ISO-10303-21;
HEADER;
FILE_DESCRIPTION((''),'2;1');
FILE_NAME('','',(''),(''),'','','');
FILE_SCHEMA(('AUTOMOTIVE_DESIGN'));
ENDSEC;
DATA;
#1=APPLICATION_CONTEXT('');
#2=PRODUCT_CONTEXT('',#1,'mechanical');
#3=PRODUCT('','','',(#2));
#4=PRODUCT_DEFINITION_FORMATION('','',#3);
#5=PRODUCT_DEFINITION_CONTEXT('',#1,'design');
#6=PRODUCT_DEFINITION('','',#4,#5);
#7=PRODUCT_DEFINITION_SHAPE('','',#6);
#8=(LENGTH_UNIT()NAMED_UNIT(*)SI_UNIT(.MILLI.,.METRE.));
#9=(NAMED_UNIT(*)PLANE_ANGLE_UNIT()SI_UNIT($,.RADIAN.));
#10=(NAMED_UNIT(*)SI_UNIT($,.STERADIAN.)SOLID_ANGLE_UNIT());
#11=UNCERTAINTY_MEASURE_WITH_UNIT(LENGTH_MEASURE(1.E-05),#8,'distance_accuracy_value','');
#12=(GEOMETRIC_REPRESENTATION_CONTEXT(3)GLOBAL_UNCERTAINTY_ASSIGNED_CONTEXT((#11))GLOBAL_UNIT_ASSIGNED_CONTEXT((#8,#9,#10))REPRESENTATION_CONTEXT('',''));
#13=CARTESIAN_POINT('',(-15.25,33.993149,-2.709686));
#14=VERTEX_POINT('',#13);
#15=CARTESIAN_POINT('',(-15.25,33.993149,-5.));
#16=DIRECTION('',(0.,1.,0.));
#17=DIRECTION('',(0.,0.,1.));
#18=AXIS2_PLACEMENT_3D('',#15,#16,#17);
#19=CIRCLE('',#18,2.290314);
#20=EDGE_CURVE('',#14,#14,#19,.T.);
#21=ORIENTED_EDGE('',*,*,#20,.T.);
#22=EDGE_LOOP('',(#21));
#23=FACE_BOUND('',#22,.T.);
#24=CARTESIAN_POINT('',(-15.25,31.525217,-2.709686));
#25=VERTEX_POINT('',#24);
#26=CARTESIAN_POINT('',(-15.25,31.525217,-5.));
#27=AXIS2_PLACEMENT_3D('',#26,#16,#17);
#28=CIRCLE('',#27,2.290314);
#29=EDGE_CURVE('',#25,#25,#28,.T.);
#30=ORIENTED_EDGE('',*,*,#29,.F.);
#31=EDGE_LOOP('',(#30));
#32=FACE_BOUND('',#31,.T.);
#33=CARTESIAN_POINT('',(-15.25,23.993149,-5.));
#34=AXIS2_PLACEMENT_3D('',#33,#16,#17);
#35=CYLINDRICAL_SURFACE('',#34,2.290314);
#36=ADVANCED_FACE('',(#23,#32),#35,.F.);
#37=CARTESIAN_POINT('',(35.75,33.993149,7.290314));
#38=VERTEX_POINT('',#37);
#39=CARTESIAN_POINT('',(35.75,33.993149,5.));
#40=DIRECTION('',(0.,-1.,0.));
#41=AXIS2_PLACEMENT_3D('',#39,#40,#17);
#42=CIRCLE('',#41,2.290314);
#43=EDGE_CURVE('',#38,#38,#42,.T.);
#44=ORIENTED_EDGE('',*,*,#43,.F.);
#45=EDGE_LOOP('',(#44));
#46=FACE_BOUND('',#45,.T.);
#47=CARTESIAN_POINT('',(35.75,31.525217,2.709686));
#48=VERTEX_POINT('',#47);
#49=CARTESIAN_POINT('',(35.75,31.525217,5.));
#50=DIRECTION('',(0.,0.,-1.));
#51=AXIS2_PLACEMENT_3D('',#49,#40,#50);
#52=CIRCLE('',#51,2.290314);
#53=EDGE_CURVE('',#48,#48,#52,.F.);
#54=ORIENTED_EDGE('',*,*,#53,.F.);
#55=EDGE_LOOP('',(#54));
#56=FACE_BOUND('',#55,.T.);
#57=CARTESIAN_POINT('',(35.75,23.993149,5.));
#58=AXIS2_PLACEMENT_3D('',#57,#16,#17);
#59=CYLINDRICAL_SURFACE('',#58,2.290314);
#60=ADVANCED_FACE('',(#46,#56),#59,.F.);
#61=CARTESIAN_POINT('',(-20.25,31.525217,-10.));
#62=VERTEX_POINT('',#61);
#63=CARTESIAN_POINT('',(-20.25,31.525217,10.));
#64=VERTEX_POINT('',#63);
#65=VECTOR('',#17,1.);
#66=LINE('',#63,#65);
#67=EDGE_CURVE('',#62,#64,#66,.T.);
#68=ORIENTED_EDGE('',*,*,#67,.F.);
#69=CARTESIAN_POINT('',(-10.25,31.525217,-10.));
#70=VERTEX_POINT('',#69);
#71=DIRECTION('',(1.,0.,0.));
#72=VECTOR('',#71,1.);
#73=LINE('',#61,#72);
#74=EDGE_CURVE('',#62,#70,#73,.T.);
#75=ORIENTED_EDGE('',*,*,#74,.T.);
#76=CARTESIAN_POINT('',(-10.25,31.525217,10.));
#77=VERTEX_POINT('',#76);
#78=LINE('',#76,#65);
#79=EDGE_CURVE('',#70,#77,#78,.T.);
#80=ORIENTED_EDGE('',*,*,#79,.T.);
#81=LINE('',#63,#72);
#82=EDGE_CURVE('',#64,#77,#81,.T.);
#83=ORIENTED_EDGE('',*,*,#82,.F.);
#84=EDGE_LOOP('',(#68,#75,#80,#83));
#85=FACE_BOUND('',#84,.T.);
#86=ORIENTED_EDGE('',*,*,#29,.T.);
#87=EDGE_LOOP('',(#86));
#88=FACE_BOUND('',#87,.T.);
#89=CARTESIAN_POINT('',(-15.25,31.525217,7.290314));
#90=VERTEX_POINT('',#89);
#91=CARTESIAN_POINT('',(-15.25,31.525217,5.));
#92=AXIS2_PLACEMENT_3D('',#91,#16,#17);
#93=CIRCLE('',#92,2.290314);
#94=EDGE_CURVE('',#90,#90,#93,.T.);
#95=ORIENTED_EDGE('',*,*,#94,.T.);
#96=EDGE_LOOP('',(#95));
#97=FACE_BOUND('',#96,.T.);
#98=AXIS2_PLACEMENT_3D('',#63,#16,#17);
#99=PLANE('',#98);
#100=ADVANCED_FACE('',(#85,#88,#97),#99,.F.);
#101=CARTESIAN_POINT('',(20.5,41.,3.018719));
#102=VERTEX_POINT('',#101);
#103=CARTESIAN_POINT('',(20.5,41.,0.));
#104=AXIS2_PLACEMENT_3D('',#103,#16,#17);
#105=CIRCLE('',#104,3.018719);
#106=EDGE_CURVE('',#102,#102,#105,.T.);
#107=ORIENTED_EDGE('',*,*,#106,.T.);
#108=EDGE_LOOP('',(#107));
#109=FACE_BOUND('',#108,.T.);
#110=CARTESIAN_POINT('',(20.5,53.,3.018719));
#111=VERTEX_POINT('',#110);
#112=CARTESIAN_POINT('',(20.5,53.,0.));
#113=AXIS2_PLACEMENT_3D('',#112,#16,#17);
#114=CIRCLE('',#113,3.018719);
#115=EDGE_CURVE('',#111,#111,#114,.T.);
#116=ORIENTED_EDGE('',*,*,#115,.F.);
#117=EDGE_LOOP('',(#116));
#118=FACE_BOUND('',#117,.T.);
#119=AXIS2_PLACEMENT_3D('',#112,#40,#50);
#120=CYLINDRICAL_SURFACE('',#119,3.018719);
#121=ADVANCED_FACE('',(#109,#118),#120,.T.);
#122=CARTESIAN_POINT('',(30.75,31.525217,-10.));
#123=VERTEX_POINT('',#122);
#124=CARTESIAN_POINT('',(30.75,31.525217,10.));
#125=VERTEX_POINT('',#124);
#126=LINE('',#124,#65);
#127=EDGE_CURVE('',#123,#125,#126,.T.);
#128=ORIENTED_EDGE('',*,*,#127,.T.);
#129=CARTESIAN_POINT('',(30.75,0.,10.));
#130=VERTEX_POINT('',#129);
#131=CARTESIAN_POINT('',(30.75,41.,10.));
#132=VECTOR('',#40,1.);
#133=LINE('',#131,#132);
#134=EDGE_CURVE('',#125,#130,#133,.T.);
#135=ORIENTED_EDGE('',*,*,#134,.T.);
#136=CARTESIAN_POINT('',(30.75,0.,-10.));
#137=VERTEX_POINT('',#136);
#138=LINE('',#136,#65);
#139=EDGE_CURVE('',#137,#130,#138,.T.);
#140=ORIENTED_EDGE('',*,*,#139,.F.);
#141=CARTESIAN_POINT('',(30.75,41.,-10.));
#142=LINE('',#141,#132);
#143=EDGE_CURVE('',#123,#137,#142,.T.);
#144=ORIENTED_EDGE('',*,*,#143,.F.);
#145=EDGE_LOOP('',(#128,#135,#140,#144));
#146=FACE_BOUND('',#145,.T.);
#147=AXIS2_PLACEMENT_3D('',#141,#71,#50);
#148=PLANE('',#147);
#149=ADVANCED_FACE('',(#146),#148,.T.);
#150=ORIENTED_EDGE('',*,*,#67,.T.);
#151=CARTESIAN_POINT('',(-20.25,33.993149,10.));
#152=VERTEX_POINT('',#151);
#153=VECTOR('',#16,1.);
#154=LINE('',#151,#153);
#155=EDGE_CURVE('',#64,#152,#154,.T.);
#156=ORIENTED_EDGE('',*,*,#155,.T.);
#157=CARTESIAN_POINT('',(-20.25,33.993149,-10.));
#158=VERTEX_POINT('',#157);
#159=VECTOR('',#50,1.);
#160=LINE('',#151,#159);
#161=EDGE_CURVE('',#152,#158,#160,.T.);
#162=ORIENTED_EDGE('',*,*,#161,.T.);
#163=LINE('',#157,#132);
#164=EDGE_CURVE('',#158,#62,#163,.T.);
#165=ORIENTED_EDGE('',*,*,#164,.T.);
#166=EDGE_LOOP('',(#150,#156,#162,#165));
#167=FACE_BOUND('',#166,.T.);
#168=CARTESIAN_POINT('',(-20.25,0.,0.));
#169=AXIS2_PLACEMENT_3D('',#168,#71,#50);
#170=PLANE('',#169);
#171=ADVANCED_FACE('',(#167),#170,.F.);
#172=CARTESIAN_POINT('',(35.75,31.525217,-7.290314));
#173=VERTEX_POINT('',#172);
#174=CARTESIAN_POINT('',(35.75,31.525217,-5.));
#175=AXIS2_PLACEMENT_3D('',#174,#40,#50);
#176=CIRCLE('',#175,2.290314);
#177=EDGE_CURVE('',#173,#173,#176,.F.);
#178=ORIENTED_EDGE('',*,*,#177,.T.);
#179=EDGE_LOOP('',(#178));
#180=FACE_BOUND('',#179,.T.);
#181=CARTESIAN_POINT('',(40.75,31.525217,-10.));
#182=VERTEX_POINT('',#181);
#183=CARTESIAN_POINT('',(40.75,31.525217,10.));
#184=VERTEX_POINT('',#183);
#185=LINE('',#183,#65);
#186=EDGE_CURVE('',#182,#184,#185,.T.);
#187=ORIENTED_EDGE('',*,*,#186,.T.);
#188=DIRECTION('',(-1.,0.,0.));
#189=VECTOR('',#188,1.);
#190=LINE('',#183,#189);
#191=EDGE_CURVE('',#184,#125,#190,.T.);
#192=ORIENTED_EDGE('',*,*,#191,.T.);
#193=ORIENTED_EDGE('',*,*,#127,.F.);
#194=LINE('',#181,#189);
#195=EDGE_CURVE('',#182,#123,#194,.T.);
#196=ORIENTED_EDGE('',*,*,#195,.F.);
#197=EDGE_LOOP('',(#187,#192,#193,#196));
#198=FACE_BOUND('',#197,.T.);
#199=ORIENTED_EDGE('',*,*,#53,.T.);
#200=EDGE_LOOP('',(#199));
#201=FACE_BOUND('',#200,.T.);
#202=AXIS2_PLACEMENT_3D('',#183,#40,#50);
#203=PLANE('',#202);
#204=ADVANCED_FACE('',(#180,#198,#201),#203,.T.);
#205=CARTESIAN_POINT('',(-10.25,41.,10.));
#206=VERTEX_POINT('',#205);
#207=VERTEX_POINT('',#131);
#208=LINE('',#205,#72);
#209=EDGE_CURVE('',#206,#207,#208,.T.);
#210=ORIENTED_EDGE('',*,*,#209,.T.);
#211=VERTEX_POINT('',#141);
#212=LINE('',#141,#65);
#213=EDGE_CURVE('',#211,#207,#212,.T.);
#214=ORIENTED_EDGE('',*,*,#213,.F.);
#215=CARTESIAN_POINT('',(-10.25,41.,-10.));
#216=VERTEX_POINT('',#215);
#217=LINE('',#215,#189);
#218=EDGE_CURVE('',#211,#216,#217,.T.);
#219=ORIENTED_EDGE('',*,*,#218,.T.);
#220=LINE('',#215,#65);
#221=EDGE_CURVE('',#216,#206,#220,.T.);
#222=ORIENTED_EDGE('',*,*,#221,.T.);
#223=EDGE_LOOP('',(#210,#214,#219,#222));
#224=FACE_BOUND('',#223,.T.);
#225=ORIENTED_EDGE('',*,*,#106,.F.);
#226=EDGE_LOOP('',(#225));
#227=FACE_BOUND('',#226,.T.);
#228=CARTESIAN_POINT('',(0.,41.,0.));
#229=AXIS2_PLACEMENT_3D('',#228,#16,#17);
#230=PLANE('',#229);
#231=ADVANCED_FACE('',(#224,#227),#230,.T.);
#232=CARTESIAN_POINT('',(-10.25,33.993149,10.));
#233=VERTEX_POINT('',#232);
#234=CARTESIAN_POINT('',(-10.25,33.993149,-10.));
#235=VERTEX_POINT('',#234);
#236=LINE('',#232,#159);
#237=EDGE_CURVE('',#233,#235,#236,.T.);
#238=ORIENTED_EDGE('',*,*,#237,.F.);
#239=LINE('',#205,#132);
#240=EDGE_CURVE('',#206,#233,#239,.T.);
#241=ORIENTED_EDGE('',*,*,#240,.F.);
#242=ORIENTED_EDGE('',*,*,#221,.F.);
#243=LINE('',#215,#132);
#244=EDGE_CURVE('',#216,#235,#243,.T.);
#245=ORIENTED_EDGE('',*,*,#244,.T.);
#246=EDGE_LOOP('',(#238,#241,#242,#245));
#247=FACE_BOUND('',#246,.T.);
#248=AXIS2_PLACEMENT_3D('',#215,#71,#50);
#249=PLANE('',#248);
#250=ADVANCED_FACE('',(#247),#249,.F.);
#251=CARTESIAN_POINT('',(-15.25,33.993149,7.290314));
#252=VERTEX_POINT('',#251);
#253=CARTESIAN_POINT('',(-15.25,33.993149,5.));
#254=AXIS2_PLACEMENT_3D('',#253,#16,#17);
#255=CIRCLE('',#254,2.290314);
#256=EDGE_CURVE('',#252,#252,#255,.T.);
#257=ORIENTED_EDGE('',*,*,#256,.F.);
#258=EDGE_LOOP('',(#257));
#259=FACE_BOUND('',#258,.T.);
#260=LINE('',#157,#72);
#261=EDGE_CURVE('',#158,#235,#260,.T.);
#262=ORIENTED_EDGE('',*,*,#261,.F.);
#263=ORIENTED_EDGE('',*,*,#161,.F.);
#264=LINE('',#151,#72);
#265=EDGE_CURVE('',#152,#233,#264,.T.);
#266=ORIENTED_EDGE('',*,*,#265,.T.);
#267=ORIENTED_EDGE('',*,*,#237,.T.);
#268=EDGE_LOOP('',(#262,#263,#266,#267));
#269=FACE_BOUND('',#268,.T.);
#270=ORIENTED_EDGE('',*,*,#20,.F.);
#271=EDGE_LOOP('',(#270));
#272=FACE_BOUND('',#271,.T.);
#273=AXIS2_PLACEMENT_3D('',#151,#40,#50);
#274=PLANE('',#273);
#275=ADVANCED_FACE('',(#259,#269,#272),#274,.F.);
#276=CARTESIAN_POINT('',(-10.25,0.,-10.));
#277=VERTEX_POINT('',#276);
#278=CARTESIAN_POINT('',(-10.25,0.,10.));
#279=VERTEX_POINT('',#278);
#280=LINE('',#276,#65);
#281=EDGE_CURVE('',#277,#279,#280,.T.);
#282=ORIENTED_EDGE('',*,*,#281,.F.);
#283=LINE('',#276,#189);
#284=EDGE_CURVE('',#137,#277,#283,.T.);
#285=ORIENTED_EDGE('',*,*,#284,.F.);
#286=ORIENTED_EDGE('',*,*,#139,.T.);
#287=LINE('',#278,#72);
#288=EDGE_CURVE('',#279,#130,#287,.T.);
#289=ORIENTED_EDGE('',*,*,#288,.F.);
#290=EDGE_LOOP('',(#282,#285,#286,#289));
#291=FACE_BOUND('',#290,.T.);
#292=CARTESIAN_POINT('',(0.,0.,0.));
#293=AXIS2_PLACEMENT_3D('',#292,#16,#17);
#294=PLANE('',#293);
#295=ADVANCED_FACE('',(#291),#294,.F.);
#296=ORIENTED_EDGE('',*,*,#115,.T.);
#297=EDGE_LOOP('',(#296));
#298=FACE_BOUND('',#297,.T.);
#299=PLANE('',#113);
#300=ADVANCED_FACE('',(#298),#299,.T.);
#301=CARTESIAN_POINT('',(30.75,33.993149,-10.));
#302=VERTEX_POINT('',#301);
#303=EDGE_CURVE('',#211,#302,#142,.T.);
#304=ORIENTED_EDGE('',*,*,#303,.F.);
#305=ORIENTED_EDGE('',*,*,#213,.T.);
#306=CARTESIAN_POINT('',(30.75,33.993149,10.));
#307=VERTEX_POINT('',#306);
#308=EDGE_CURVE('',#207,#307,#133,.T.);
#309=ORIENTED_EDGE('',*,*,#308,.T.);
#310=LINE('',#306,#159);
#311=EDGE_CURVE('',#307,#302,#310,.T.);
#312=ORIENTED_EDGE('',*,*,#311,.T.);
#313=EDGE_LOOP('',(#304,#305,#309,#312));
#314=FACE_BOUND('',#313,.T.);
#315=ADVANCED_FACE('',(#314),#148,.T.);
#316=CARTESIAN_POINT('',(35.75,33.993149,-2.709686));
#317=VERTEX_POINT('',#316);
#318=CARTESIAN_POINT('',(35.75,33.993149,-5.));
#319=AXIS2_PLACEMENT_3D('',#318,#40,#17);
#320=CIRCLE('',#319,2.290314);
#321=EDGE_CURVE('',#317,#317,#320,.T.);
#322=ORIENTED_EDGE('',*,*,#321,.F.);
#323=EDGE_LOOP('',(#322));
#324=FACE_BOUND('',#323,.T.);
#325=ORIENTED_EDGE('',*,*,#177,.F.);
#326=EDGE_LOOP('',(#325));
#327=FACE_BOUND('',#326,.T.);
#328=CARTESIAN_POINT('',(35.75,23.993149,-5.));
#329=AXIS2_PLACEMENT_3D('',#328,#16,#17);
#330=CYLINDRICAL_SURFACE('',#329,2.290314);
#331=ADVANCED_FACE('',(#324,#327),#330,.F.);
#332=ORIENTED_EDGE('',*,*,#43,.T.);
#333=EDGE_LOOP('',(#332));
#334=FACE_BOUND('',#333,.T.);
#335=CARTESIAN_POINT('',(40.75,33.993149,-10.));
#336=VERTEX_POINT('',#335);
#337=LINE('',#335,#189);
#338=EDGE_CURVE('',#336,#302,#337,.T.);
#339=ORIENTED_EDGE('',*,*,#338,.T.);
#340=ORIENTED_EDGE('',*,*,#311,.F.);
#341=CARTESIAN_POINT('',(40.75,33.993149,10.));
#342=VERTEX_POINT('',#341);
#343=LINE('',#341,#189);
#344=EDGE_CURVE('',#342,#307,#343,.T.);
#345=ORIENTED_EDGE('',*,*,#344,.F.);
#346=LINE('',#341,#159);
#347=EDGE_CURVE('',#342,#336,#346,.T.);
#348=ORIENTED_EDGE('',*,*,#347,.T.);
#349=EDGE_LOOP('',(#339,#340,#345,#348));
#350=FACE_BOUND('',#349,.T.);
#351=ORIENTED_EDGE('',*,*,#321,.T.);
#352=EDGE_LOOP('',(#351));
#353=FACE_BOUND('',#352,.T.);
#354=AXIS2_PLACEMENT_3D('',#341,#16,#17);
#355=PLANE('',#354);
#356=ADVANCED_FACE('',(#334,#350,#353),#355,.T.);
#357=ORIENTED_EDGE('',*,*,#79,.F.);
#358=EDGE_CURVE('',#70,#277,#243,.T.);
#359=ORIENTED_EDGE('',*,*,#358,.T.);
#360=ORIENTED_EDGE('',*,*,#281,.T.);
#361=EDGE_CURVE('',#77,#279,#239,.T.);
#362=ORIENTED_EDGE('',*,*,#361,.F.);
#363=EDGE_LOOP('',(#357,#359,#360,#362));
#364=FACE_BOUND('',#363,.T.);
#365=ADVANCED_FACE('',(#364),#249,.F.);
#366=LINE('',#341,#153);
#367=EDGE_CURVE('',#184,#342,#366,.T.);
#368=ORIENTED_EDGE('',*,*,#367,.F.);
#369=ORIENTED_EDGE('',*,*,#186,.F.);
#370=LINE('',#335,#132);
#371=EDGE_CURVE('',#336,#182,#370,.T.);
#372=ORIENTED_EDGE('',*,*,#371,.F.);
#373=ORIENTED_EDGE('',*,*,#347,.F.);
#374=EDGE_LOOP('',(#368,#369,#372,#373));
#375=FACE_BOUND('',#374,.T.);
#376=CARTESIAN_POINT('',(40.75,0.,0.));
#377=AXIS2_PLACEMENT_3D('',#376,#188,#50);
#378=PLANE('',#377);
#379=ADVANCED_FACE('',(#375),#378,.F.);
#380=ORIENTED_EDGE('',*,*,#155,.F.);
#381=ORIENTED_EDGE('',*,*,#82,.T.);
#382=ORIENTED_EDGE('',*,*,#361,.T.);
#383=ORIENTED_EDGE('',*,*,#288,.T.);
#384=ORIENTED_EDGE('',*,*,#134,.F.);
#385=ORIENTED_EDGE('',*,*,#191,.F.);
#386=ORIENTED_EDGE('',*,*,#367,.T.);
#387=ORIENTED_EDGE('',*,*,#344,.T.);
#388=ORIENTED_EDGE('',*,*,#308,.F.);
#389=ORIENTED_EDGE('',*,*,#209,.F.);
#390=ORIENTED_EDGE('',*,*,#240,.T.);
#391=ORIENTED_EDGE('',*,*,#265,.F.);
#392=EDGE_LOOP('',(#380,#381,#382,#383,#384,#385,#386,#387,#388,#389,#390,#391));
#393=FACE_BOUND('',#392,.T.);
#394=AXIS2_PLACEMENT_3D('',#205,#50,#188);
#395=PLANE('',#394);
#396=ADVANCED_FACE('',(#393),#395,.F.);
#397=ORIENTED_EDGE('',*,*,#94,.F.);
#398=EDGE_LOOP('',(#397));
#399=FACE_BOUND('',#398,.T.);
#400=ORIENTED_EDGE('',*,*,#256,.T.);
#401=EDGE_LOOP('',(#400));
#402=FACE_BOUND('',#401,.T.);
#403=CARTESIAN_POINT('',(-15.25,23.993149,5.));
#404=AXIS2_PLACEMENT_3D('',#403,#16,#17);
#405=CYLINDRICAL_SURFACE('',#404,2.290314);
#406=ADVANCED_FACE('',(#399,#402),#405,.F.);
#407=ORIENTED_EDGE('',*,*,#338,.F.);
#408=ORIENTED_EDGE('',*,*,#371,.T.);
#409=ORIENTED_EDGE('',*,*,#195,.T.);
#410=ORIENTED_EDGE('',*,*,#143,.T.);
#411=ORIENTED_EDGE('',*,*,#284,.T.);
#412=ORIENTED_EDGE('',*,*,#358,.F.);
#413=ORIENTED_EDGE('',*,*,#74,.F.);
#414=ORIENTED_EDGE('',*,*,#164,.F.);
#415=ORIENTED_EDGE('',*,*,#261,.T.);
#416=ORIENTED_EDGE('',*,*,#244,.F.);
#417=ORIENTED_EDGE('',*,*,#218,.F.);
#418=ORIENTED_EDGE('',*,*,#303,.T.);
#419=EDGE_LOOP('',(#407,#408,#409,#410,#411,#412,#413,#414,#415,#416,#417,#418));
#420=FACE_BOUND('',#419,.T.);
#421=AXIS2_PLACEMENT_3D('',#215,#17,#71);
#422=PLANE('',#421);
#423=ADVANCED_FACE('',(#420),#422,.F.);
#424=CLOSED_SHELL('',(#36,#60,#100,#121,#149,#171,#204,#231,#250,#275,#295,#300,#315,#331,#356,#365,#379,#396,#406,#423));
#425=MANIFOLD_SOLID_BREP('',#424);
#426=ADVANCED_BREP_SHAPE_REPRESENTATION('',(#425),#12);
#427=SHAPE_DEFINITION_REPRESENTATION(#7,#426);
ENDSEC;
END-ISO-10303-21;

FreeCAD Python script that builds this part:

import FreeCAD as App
import Part
import Sketcher

V = App.Vector

doc = App.newDocument("Part")
params = doc.addObject("Spreadsheet::Sheet", "Params")
for row, (alias, value) in enumerate([
    ("sketch1_height", "20 mm"),
    ("sketch1_width", "20.5 mm"),
    ("pad1_length", "41 mm"),
    ("sketch2_height", "20 mm"),
    ("pad2_length", "10 mm"),
    ("pocket1_length", "10 mm"),
    ("pad3_length", "12 mm"),
], start=1):
    params.set(f"A{row}", alias)
    params.set(f"B{row}", "=" + value)
    params.setAlias(f"B{row}", alias)

body = doc.addObject("PartDesign::Body", "Body")

sketch1 = body.newObject("Sketcher::SketchObject", "Sketch")
sketch1.AttachmentSupport = (doc.getObject("XZ_Plane"), [""])
sketch1.MapMode = "FlatFace"
sketch1.addGeometry(Part.LineSegment(V(-10, -10, 0), V(-10, 10, 0)), False)
sketch1.addGeometry(Part.LineSegment(V(-10, 10, 0), V(10, 10, 0)), False)
sketch1.addGeometry(Part.LineSegment(V(10, 10, 0), V(10, -10, 0)), False)
sketch1.addGeometry(Part.LineSegment(V(10, -10, 0), V(-10, -10, 0)), False)
sketch1.addConstraint(Sketcher.Constraint("Coincident", 0, 2, 1, 1))
sketch1.addConstraint(Sketcher.Constraint("Coincident", 1, 2, 2, 1))
sketch1.addConstraint(Sketcher.Constraint("Coincident", 2, 2, 3, 1))
sketch1.addConstraint(Sketcher.Constraint("Coincident", 3, 2, 0, 1))
sketch1.addConstraint(Sketcher.Constraint("Vertical", 0))
sketch1.addConstraint(Sketcher.Constraint("Horizontal", 1))
sketch1.addConstraint(Sketcher.Constraint("Vertical", 2))
sketch1.addConstraint(Sketcher.Constraint("Horizontal", 3))
sketch1.addConstraint(Sketcher.Constraint("Symmetric", 0, 2, 2, 2, -1, 1))
sketch1.addConstraint(Sketcher.Constraint("DistanceY", 0, 1, 0, 2, 20.0))
sketch1.addConstraint(Sketcher.Constraint("DistanceX", 1, 1, 1, 2, 20.5))
sketch1.setExpression("Constraints[9]", "Params.sketch1_height")
sketch1.setExpression("Constraints[10]", "Params.sketch1_width")
pad1 = body.newObject("PartDesign::Pad", "Pad")
pad1.Profile = sketch1
pad1.setExpression("Length", "Params.pad1_length")
pad1.Reversed = True

sketch2 = body.newObject("Sketcher::SketchObject", "Sketch001")
sketch2.AttachmentSupport = (doc.getObject("YZ_Plane"), [""])
sketch2.MapMode = "FlatFace"
sketch2.AttachmentOffset = App.Placement(V(0, 0, -10.25), App.Rotation())
sketch2.addGeometry(Part.LineSegment(V(34, -10, 0), V(31.5, -10, 0)), False)
sketch2.addGeometry(Part.LineSegment(V(31.5, -10, 0), V(31.5, 10, 0)), False)
sketch2.addGeometry(Part.LineSegment(V(31.5, 10, 0), V(34, 10, 0)), False)
sketch2.addGeometry(Part.LineSegment(V(34, 10, 0), V(34, -10, 0)), False)
sketch2.addConstraint(Sketcher.Constraint("Coincident", 0, 2, 1, 1))
sketch2.addConstraint(Sketcher.Constraint("Coincident", 1, 2, 2, 1))
sketch2.addConstraint(Sketcher.Constraint("Coincident", 2, 2, 3, 1))
sketch2.addConstraint(Sketcher.Constraint("Coincident", 3, 2, 0, 1))
sketch2.addConstraint(Sketcher.Constraint("Horizontal", 0))
sketch2.addConstraint(Sketcher.Constraint("Vertical", 1))
sketch2.addConstraint(Sketcher.Constraint("Horizontal", 2))
sketch2.addConstraint(Sketcher.Constraint("Vertical", 3))
sketch2.addConstraint(Sketcher.Constraint("DistanceY", 1, 1, 1, 2, 20.0))
sketch2.addConstraint(Sketcher.Constraint("DistanceY", 0, 2, -1, 1, 10.0))
sketch2.addConstraint(Sketcher.Constraint("DistanceX", 0, 2, 0, 1, 2.467932))
sketch2.addConstraint(Sketcher.Constraint("DistanceX", -1, 1, 2, 2, 33.993149))
sketch2.setExpression("Constraints[8]", "Params.sketch2_height")
pad2 = body.newObject("PartDesign::Pad", "Pad001")
pad2.Profile = sketch2
pad2.setExpression("Length", "Params.pad2_length")
pad2.Reversed = True

sketch3 = body.newObject("Sketcher::SketchObject", "Sketch002")
sketch3.AttachmentSupport = (doc.getObject("XZ_Plane"), [""])
sketch3.MapMode = "FlatFace"
sketch3.AttachmentOffset = App.Placement(V(0, 0, -33.993149), App.Rotation())
sketch3.addGeometry(Part.Circle(V(-15.2, -5, 0), V(0, 0, 1), 2.3), False)
sketch3.addGeometry(Part.Circle(V(-15.2, 5, 0), V(0, 0, 1), 2.3), False)
sketch3.addConstraint(Sketcher.Constraint("Equal", 0, 1))
sketch3.addConstraint(Sketcher.Constraint("Symmetric", 0, 3, 1, 3, -1))
sketch3.addConstraint(Sketcher.Constraint("DistanceY", 0, 3, -1, 1, 5.0))
sketch3.addConstraint(Sketcher.Constraint("DistanceX", 0, 3, -1, 1, 15.25))
sketch3.addConstraint(Sketcher.Constraint("Diameter", 0, 4.580628))
pocket1 = body.newObject("PartDesign::Pocket", "Pocket")
pocket1.Profile = sketch3
pocket1.setExpression("Length", "Params.pocket1_length")
pocket1.Reversed = True
doc.recompute()

datumplane = body.newObject("PartDesign::Plane", "DatumPlane")
datumplane.AttachmentSupport = (doc.getObject("YZ_Plane"), [""])
datumplane.MapMode = "FlatFace"
datumplane.AttachmentOffset = App.Placement(V(0, 0, 10.25), App.Rotation())
mirrored = body.newObject("PartDesign::Mirrored", "Mirrored")
mirrored.Originals = [pad1, pad2, pocket1]
mirrored.MirrorPlane = (datumplane, [""])
body.Tip = mirrored

sketch4 = body.newObject("Sketcher::SketchObject", "Sketch003")
sketch4.AttachmentSupport = (doc.getObject("XZ_Plane"), [""])
sketch4.MapMode = "FlatFace"
sketch4.AttachmentOffset = App.Placement(V(0, 0, -41), App.Rotation())
sketch4.addGeometry(Part.Circle(V(20.5, 0, 0), V(0, 0, 1), 3), False)
sketch4.addConstraint(Sketcher.Constraint("PointOnObject", 0, 3, -1))
sketch4.addConstraint(Sketcher.Constraint("DistanceX", -1, 1, 0, 3, 20.5))
sketch4.addConstraint(Sketcher.Constraint("Diameter", 0, 6.037437))
pad3 = body.newObject("PartDesign::Pad", "Pad002")
pad3.Profile = sketch4
pad3.setExpression("Length", "Params.pad3_length")
pad3.Reversed = True

doc.recompute()
